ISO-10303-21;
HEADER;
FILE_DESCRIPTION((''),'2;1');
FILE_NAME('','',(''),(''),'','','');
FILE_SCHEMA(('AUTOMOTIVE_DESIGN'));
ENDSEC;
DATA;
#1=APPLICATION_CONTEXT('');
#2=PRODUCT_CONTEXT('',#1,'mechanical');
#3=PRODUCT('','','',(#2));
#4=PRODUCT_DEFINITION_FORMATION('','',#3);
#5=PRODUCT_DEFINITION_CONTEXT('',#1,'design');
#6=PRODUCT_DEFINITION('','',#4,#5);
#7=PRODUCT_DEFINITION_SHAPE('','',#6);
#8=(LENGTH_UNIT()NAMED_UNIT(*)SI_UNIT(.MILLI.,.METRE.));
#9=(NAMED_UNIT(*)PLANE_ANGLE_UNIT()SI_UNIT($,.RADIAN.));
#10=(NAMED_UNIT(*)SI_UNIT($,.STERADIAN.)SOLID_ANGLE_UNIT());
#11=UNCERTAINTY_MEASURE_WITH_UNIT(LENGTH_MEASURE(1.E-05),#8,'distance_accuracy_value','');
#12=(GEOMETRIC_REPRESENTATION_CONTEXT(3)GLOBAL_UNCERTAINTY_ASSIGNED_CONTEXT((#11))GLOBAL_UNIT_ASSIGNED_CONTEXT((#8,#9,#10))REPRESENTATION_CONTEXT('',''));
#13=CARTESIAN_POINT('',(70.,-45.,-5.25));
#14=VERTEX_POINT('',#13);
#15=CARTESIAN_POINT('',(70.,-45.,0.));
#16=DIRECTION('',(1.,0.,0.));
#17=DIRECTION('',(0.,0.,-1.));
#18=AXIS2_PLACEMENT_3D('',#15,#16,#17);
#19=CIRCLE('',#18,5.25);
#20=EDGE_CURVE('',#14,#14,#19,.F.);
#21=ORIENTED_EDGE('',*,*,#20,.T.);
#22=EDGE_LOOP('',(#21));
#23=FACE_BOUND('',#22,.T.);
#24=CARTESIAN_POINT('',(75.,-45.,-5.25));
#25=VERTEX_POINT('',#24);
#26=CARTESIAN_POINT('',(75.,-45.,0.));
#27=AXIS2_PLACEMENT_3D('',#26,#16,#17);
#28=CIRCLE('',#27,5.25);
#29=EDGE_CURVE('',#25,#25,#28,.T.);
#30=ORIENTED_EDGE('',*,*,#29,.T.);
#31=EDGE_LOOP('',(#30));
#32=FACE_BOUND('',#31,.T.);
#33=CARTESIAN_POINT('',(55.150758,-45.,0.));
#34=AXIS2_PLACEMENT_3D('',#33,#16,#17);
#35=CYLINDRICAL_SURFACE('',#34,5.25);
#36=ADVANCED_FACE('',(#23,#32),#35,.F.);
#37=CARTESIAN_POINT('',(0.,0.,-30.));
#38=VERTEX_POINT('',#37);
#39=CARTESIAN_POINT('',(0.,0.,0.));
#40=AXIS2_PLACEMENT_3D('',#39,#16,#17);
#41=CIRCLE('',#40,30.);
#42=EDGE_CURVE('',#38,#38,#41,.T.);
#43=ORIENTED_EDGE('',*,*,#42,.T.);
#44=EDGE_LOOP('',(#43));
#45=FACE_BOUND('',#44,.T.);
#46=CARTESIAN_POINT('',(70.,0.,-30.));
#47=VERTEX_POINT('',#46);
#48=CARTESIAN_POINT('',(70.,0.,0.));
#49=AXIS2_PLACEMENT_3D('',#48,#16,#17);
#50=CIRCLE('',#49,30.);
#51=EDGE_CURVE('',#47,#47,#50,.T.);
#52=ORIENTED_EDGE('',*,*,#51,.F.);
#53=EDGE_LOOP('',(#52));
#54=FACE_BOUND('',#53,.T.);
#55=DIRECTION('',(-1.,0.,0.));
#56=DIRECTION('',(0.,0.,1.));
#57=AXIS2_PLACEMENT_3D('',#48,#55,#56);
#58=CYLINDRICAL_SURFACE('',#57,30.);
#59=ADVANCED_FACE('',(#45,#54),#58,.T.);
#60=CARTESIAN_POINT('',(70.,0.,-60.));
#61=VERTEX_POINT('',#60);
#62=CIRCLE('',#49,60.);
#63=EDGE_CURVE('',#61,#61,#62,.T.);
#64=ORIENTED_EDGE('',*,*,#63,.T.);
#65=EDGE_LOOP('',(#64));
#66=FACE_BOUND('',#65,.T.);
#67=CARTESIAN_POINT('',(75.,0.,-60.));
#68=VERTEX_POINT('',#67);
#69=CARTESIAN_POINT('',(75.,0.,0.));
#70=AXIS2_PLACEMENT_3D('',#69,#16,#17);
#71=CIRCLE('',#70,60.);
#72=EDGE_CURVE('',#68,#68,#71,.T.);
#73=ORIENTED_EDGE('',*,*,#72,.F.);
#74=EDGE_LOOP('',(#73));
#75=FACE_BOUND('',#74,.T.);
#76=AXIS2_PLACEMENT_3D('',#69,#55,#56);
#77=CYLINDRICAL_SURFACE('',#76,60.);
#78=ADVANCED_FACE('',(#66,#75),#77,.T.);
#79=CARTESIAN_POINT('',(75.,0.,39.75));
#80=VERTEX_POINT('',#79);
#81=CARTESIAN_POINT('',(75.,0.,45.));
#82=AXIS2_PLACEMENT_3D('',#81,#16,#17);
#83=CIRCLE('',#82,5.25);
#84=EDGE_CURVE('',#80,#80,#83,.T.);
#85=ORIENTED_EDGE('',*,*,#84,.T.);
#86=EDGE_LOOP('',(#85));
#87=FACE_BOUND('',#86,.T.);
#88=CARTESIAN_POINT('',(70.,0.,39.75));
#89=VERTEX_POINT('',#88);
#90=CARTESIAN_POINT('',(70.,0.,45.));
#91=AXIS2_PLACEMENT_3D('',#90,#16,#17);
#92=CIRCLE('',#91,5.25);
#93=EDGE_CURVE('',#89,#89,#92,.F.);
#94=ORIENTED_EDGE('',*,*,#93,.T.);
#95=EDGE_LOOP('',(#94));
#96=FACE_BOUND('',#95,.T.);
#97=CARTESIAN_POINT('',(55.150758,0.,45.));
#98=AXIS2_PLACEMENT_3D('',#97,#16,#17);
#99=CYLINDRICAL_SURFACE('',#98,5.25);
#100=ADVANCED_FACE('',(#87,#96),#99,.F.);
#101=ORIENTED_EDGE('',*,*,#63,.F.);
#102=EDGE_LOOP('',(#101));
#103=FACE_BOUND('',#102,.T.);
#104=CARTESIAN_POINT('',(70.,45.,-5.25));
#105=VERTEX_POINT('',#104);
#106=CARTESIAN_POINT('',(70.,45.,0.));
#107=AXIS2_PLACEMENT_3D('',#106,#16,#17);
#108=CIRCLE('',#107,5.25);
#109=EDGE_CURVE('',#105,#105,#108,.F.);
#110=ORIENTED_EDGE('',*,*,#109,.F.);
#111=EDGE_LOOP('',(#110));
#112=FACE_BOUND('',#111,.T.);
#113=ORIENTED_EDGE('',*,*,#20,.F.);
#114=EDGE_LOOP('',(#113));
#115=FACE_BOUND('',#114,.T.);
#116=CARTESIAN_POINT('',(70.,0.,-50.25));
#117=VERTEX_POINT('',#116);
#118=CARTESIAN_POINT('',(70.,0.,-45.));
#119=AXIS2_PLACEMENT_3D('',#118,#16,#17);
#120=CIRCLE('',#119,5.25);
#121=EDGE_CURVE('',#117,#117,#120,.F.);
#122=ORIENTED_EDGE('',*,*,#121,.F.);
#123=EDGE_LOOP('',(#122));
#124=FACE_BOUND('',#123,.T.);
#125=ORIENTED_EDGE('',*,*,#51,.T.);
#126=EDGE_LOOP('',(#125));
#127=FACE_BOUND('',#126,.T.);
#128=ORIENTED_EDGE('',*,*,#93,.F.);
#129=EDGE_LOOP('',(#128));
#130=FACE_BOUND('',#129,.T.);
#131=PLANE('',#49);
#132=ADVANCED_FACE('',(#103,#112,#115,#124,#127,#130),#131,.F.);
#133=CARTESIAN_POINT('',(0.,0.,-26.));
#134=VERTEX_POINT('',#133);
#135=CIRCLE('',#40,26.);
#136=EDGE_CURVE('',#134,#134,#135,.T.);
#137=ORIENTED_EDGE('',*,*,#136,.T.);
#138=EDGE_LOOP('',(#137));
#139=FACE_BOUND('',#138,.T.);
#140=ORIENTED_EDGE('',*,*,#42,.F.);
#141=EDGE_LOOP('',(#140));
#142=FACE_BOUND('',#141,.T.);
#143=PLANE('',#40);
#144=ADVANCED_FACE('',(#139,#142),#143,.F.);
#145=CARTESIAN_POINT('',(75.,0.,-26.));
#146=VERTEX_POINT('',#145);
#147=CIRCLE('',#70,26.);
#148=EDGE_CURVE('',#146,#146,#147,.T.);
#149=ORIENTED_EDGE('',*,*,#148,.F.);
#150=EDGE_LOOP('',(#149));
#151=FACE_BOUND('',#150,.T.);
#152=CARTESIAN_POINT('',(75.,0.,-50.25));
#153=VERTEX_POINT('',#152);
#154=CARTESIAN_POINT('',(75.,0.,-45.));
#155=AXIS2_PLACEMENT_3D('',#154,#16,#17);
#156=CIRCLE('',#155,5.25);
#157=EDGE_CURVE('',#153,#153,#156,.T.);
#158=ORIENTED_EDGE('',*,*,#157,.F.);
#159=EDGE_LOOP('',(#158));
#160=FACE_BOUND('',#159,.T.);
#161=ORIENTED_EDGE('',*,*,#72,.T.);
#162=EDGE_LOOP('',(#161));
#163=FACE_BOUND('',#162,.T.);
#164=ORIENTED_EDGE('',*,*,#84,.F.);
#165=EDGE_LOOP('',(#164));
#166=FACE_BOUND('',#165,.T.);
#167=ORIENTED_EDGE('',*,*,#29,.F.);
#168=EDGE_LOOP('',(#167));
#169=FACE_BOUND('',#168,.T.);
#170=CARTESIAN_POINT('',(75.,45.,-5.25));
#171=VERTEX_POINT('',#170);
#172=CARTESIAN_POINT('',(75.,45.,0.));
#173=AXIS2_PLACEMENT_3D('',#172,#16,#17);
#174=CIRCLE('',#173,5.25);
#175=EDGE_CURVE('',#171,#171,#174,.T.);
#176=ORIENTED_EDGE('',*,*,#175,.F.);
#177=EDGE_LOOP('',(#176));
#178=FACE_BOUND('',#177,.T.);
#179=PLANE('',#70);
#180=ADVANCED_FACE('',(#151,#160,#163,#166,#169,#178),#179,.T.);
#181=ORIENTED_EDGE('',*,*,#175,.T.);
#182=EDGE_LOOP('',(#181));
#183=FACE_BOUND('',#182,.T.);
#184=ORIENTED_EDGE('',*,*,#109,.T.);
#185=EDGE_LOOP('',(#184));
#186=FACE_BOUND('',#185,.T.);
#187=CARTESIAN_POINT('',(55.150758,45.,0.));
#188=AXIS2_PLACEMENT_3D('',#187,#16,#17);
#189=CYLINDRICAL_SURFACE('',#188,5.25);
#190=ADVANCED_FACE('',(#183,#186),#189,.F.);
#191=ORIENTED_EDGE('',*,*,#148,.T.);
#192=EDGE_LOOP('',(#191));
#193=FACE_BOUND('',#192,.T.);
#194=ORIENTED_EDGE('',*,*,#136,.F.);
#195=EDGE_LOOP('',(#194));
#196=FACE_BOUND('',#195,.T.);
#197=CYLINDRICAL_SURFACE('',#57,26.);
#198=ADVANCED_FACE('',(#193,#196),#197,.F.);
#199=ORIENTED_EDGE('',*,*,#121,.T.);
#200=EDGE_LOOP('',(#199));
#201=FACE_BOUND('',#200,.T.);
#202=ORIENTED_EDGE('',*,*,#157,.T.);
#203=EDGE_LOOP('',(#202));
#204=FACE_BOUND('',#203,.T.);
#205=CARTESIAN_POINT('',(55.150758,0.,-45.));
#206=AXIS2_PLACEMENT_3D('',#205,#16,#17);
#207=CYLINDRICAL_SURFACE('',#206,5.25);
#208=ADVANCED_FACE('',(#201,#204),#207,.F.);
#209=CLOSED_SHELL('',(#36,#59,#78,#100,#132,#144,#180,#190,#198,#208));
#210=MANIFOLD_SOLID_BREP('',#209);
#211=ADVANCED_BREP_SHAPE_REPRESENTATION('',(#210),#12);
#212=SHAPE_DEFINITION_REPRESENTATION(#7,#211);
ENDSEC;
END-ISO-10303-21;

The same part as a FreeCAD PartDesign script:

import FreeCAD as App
import Part
import Sketcher
from FreeCAD import Vector
Q = App.Units.Quantity

doc = App.newDocument("Part")
body = doc.addObject("PartDesign::Body", "Body")

sketch1 = doc.addObject("Sketcher::SketchObject", "Sketch")
body.addObject(sketch1)
sketch1.AttachmentSupport = (doc.YZ_Plane, [""])
sketch1.MapMode = "FlatFace"
sketch1.addGeometry(Part.Circle(Vector(0, 0, 0), Vector(0, 0, 1), 30), False)
sketch1.addGeometry(Part.Circle(Vector(0, 0, 0), Vector(0, 0, 1), 26), False)
sketch1.addConstraint(Sketcher.Constraint("Coincident", 0, 3, -1, 1))
sketch1.addConstraint(Sketcher.Constraint("Coincident", 1, 3, -1, 1))
sketch1.addConstraint(Sketcher.Constraint("Diameter", 0, Q("60 mm")))
sketch1.addConstraint(Sketcher.Constraint("Diameter", 1, Q("52 mm")))
pad1 = doc.addObject("PartDesign::Pad", "Pad")
body.addObject(pad1)
pad1.Profile = sketch1
pad1.Length = 70

sketch2 = doc.addObject("Sketcher::SketchObject", "Sketch001")
body.addObject(sketch2)
sketch2.AttachmentSupport = (doc.YZ_Plane, [""])
sketch2.MapMode = "FlatFace"
sketch2.AttachmentOffset = App.Placement(Vector(0, 0, 70), App.Rotation())
sketch2.addGeometry(Part.Circle(Vector(0, 0, 0), Vector(0, 0, 1), 60), False)
sketch2.addGeometry(Part.Circle(Vector(0, 0, 0), Vector(0, 0, 1), 26), False)
sketch2.addConstraint(Sketcher.Constraint("Coincident", 0, 3, -1, 1))
sketch2.addConstraint(Sketcher.Constraint("Coincident", 1, 3, -1, 1))
sketch2.addConstraint(Sketcher.Constraint("Diameter", 0, Q("120 mm")))
sketch2.addConstraint(Sketcher.Constraint("Diameter", 1, Q("52 mm")))
pad2 = doc.addObject("PartDesign::Pad", "Pad001")
body.addObject(pad2)
pad2.Profile = sketch2
pad2.Length = 5

sketch3 = doc.addObject("Sketcher::SketchObject", "Sketch002")
body.addObject(sketch3)
sketch3.AttachmentSupport = (doc.YZ_Plane, [""])
sketch3.MapMode = "FlatFace"
sketch3.AttachmentOffset = App.Placement(Vector(0, 0, 75), App.Rotation())
sketch3.addGeometry(Part.Circle(Vector(0, 45, 0), Vector(0, 0, 1), 5.25), False)
sketch3.addGeometry(Part.Circle(Vector(0, -45, 0), Vector(0, 0, 1), 5.25), False)
sketch3.addGeometry(Part.Circle(Vector(-45, 0, 0), Vector(0, 0, 1), 5.25), False)
sketch3.addGeometry(Part.Circle(Vector(45, 0, 0), Vector(0, 0, 1), 5.25), False)
sketch3.addConstraint(Sketcher.Constraint("Equal", 0, 1))
sketch3.addConstraint(Sketcher.Constraint("Equal", 1, 2))
sketch3.addConstraint(Sketcher.Constraint("Equal", 2, 3))
sketch3.addConstraint(Sketcher.Constraint("Symmetric", 0, 3, 1, 3, -1, 1))
sketch3.addConstraint(Sketcher.Constraint("Symmetric", 2, 3, 3, 3, -1, 1))
sketch3.addConstraint(Sketcher.Constraint("PointOnObject", 0, 3, -2))
sketch3.addConstraint(Sketcher.Constraint("PointOnObject", 2, 3, -1))
sketch3.addConstraint(Sketcher.Constraint("Diameter", 0, Q("10.5 mm")))
sketch3.addConstraint(Sketcher.Constraint("DistanceY", -1, 1, 0, 3, Q("45 mm")))
sketch3.addConstraint(Sketcher.Constraint("DistanceX", 2, 3, -1, 1, Q("45 mm")))
pocket1 = doc.addObject("PartDesign::Pocket", "Pocket")
body.addObject(pocket1)
pocket1.Profile = sketch3
pocket1.Length = 5

doc.recompute()
